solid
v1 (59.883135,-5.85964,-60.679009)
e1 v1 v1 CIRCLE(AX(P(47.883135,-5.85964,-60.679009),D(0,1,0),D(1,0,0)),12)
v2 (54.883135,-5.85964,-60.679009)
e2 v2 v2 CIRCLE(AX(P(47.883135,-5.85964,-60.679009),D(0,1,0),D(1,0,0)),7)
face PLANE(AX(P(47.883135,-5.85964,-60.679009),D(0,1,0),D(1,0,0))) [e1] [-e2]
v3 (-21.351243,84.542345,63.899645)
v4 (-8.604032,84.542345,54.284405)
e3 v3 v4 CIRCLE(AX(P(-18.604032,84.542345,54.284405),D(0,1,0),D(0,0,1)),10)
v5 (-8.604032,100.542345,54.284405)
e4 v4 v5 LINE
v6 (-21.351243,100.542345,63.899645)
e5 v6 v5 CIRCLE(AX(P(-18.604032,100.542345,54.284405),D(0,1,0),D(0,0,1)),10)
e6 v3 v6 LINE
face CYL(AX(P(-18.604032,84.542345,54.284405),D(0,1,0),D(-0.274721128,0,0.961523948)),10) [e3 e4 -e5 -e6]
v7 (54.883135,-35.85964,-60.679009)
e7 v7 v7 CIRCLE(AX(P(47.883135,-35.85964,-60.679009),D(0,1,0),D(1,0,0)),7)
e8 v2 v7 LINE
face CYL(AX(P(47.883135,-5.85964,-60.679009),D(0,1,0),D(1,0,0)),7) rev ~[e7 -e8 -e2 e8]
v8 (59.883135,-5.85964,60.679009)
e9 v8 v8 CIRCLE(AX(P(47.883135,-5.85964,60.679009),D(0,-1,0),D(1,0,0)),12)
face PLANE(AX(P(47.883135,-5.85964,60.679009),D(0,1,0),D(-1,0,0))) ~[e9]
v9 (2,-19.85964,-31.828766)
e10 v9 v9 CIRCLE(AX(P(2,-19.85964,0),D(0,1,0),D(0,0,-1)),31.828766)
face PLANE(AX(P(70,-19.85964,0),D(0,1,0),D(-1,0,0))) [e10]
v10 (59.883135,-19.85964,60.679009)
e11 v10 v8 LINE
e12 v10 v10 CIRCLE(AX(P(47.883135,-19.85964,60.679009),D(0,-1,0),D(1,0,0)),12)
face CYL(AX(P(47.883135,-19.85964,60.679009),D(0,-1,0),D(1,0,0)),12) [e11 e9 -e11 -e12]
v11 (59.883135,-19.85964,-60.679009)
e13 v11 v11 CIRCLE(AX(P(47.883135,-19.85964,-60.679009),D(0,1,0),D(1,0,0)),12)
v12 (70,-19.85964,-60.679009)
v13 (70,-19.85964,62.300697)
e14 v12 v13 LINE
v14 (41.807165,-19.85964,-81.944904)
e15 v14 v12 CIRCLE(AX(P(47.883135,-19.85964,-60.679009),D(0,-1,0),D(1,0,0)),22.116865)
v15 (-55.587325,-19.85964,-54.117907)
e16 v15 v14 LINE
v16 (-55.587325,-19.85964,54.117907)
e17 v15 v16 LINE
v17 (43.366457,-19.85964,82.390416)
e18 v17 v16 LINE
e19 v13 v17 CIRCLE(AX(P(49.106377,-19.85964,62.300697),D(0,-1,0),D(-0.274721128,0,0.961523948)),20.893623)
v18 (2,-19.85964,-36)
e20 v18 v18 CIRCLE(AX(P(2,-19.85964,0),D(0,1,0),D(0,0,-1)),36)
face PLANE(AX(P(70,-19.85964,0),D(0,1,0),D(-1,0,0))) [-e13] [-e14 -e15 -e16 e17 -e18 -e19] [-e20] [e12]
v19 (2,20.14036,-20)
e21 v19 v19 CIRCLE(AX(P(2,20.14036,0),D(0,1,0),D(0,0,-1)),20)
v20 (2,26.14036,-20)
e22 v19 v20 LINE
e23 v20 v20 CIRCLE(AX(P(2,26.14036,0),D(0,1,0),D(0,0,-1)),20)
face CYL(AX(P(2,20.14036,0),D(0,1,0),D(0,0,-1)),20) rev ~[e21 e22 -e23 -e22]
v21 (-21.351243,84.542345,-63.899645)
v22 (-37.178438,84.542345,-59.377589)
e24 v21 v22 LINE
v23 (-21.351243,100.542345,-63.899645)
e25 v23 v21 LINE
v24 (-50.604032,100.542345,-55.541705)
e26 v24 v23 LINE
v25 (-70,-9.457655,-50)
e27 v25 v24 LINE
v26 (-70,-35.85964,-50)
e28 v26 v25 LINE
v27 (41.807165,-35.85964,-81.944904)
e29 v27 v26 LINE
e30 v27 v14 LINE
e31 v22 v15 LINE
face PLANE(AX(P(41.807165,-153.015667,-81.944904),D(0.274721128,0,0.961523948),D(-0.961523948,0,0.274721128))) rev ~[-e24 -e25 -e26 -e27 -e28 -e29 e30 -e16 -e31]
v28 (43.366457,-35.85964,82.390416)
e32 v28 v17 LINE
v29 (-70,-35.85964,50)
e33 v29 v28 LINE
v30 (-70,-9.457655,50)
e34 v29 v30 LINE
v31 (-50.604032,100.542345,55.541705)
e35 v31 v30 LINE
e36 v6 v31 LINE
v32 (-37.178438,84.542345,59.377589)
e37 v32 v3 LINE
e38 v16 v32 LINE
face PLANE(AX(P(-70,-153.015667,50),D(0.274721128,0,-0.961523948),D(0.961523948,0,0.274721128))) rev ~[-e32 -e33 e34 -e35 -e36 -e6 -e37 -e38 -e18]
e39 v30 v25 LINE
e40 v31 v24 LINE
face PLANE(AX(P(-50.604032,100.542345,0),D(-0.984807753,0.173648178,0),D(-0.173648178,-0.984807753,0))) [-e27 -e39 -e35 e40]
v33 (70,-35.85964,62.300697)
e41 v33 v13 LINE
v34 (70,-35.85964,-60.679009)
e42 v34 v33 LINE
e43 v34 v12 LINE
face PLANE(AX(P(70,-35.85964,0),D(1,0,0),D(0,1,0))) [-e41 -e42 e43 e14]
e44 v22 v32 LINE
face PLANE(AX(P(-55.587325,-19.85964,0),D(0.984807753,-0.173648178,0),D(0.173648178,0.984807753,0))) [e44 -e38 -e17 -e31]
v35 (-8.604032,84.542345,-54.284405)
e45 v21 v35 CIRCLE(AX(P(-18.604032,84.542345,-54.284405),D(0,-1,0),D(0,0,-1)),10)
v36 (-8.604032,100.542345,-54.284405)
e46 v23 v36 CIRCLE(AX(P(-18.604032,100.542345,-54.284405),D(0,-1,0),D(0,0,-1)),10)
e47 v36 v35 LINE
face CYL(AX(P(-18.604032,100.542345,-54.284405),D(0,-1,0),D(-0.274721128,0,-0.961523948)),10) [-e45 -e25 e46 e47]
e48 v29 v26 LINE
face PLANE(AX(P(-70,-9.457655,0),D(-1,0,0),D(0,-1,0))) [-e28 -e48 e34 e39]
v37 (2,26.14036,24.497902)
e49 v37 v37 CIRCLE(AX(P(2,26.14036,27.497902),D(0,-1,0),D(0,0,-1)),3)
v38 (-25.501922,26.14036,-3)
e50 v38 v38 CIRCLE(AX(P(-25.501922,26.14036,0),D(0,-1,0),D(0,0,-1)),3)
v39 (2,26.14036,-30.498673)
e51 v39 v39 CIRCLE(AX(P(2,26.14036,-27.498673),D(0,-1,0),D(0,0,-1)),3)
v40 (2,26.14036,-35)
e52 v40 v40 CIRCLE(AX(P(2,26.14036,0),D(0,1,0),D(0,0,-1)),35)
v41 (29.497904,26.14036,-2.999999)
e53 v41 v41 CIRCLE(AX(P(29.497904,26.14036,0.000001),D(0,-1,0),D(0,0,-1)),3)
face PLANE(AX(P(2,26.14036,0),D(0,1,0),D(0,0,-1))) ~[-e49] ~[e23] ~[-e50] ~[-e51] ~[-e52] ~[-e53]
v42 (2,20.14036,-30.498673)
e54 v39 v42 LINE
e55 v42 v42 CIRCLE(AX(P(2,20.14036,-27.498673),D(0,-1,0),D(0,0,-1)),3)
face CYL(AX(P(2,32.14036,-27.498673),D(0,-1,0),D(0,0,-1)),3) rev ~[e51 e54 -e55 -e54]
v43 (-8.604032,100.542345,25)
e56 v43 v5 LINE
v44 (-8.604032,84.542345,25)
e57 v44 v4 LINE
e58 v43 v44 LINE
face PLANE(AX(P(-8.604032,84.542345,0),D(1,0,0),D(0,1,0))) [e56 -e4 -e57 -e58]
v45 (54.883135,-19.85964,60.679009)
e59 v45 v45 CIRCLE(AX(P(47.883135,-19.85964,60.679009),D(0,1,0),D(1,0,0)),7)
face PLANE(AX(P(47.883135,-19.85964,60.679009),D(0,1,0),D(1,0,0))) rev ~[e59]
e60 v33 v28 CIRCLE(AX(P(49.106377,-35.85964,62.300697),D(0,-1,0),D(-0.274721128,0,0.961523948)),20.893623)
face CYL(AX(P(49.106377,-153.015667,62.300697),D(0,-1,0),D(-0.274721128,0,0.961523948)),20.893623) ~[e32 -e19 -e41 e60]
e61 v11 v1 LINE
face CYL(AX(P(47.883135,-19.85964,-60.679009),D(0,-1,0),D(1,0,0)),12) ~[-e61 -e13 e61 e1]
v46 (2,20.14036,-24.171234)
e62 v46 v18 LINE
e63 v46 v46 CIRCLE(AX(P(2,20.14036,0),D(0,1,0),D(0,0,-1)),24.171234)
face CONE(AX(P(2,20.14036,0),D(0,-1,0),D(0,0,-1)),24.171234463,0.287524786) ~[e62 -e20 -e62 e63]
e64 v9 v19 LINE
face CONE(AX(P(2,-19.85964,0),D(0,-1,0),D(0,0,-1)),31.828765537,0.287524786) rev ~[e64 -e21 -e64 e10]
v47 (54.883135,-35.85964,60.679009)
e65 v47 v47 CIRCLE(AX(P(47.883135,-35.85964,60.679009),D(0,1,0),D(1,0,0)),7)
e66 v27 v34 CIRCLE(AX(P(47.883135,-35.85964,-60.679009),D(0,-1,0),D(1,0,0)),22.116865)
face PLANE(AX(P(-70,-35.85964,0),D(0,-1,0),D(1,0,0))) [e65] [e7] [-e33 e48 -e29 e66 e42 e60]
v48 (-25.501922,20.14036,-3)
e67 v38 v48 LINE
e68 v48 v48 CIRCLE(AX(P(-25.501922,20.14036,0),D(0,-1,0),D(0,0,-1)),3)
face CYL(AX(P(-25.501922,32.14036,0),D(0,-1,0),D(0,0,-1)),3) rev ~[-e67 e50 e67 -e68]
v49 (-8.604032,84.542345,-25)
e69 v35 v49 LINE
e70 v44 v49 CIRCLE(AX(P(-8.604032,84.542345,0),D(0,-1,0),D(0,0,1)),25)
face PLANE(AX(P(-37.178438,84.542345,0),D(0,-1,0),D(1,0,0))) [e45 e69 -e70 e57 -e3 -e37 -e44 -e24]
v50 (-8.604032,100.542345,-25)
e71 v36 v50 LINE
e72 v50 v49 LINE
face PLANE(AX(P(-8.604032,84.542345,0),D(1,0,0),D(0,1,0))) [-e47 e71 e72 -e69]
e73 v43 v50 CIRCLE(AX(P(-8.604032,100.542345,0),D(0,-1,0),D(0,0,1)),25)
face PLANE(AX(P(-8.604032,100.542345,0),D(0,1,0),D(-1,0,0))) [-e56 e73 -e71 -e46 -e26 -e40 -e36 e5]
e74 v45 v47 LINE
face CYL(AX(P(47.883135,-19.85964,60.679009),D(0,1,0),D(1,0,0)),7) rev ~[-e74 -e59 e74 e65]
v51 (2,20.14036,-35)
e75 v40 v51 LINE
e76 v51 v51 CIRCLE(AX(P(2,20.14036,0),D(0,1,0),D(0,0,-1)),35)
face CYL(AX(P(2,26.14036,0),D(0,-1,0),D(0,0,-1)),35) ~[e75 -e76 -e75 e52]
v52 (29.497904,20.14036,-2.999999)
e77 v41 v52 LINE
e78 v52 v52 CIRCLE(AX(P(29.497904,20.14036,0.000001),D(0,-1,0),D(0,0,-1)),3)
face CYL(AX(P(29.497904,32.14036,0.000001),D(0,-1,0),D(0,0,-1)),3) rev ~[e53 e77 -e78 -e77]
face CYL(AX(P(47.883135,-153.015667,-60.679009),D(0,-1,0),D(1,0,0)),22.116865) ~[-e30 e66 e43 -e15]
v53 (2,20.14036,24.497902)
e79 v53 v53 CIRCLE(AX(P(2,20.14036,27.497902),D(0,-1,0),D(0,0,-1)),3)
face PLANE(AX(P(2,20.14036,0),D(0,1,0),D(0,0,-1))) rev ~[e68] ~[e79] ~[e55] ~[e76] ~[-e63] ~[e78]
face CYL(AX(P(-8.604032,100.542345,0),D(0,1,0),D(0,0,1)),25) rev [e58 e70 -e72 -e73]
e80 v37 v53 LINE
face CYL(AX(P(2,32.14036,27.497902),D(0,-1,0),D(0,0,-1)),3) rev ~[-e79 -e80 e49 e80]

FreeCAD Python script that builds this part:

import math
import FreeCAD as App
import Part
import Sketcher
from FreeCAD import Vector
Q = App.Units.Quantity


def edges_at(feature, points):
    """Names of the edges that pass closest to the given points."""
    edges = feature.Shape.Edges
    near = lambda p: min(range(len(edges)), key=lambda i: edges[i].distToShape(Part.Vertex(*p))[0])
    return sorted({f"Edge{near(p) + 1}" for p in points})

doc = App.newDocument("Part")
body = doc.addObject("PartDesign::Body", "Body")

sketch1 = body.newObject("Sketcher::SketchObject", "Sketch")
sketch1.AttachmentSupport = (doc.getObject("XY_Plane"), [""])
sketch1.MapMode = "FlatFace"
sketch1.addGeometry(Part.LineSegment(Vector(-70, -36, 0), Vector(70, -36, 0)), False)
sketch1.addGeometry(Part.LineSegment(Vector(70, -36, 0), Vector(70, -20, 0)), False)
sketch1.addGeometry(Part.LineSegment(Vector(70, -20, 0), Vector(-56, -20, 0)), False)
sketch1.addGeometry(Part.LineSegment(Vector(-56, -20, 0), Vector(-37, 85, 0)), False)
sketch1.addGeometry(Part.LineSegment(Vector(-37, 85, 0), Vector(-9, 85, 0)), False)
sketch1.addGeometry(Part.LineSegment(Vector(-9, 85, 0), Vector(-9, 101, 0)), False)
sketch1.addGeometry(Part.LineSegment(Vector(-9, 101, 0), Vector(-51, 101, 0)), False)
sketch1.addGeometry(Part.LineSegment(Vector(-51, 101, 0), Vector(-70, -9, 0)), False)
sketch1.addGeometry(Part.LineSegment(Vector(-70, -9, 0), Vector(-70, -36, 0)), False)
sketch1.addConstraint(Sketcher.Constraint("Coincident", 0, 2, 1, 1))
sketch1.addConstraint(Sketcher.Constraint("Coincident", 1, 2, 2, 1))
sketch1.addConstraint(Sketcher.Constraint("Coincident", 2, 2, 3, 1))
sketch1.addConstraint(Sketcher.Constraint("Coincident", 3, 2, 4, 1))
sketch1.addConstraint(Sketcher.Constraint("Coincident", 4, 2, 5, 1))
sketch1.addConstraint(Sketcher.Constraint("Coincident", 5, 2, 6, 1))
sketch1.addConstraint(Sketcher.Constraint("Coincident", 6, 2, 7, 1))
sketch1.addConstraint(Sketcher.Constraint("Coincident", 7, 2, 8, 1))
sketch1.addConstraint(Sketcher.Constraint("Coincident", 8, 2, 0, 1))
sketch1.addConstraint(Sketcher.Constraint("Horizontal", 0))
sketch1.addConstraint(Sketcher.Constraint("Vertical", 1))
sketch1.addConstraint(Sketcher.Constraint("Horizontal", 2))
sketch1.addConstraint(Sketcher.Constraint("Horizontal", 4))
sketch1.addConstraint(Sketcher.Constraint("Vertical", 5))
sketch1.addConstraint(Sketcher.Constraint("Horizontal", 6))
sketch1.addConstraint(Sketcher.Constraint("Vertical", 8))
sketch1.addConstraint(Sketcher.Constraint("Parallel", 3, 7))
sketch1.addConstraint(Sketcher.Constraint("Equal", 1, 5))
sketch1.addConstraint(Sketcher.Constraint("DistanceX", 0, 1, 0, 2, Q("140 mm")))
sketch1.addConstraint(Sketcher.Constraint("DistanceX", 6, 2, 6, 1, Q("42 mm")))
sketch1.addConstraint(Sketcher.Constraint("DistanceY", 1, 1, 1, 2, Q("16 mm")))
sketch1.addConstraint(Sketcher.Constraint("Angle", 3, Q("80 deg")))
sketch1.addConstraint(Sketcher.Constraint("DistanceX", -1, 1, 0, 2, Q("70 mm")))
sketch1.addConstraint(Sketcher.Constraint("DistanceY", 7, 2, 3, 2, Q("94 mm")))
sketch1.addConstraint(Sketcher.Constraint("DistanceX", 2, 2, 2, 1, Q("125.587325 mm")))
sketch1.addConstraint(Sketcher.Constraint("DistanceX", 4, 1, 4, 2, Q("28.574406 mm")))
sketch1.addConstraint(Sketcher.Constraint("DistanceY", 0, 2, -1, 1, Q("35.85964 mm")))
pad1 = body.newObject("PartDesign::Pad", "Pad")
pad1.Profile = sketch1
pad1.Length = 180
pad1.Midplane = True

sketch2 = body.newObject("Sketcher::SketchObject", "Sketch001")
sketch2.AttachmentSupport = (doc.getObject("XZ_Plane"), [""])
sketch2.MapMode = "FlatFace"
sketch2.addGeometry(Part.LineSegment(Vector(-98, -118, 0), Vector(-98, 118, 0)), False)
sketch2.addGeometry(Part.LineSegment(Vector(-98, 118, 0), Vector(98, 118, 0)), False)
sketch2.addGeometry(Part.LineSegment(Vector(98, 118, 0), Vector(98, -118, 0)), False)
sketch2.addGeometry(Part.LineSegment(Vector(98, -118, 0), Vector(-98, -118, 0)), False)
sketch2.addGeometry(Part.LineSegment(Vector(-70, 50, 0), Vector(-70, -50, 0)), False)
sketch2.addGeometry(Part.LineSegment(Vector(-70, -50, 0), Vector(42, -82, 0)), False)
sketch2.addGeometry(Part.ArcOfCircle(Part.Circle(Vector(48, -61, 0), Vector(0, 0, 1), 22), math.radians(-106), math.radians(0)), False)
sketch2.addGeometry(Part.LineSegment(Vector(70, -61, 0), Vector(70, 62, 0)), False)
sketch2.addGeometry(Part.ArcOfCircle(Part.Circle(Vector(49, 62, 0), Vector(0, 0, 1), 21), math.radians(0), math.radians(106)), False)
sketch2.addGeometry(Part.LineSegment(Vector(43, 82, 0), Vector(-70, 50, 0)), False)
sketch2.addConstraint(Sketcher.Constraint("Coincident", 0, 2, 1, 1))
sketch2.addConstraint(Sketcher.Constraint("Coincident", 1, 2, 2, 1))
sketch2.addConstraint(Sketcher.Constraint("Coincident", 2, 2, 3, 1))
sketch2.addConstraint(Sketcher.Constraint("Coincident", 3, 2, 0, 1))
sketch2.addConstraint(Sketcher.Constraint("Coincident", 4, 2, 5, 1))
sketch2.addConstraint(Sketcher.Constraint("Tangent", 5, 2, 6, 1))
sketch2.addConstraint(Sketcher.Constraint("Tangent", 6, 2, 7, 1))
sketch2.addConstraint(Sketcher.Constraint("Tangent", 7, 2, 8, 1))
sketch2.addConstraint(Sketcher.Constraint("Tangent", 8, 2, 9, 1))
sketch2.addConstraint(Sketcher.Constraint("Coincident", 9, 2, 4, 1))
sketch2.addConstraint(Sketcher.Constraint("Vertical", 0))
sketch2.addConstraint(Sketcher.Constraint("Horizontal", 1))
sketch2.addConstraint(Sketcher.Constraint("Vertical", 2))
sketch2.addConstraint(Sketcher.Constraint("Horizontal", 3))
sketch2.addConstraint(Sketcher.Constraint("Vertical", 4))
sketch2.addConstraint(Sketcher.Constraint("Vertical", 7))
sketch2.addConstraint(Sketcher.Constraint("Symmetric", 0, 2, 2, 2, -1, 1))
sketch2.addConstraint(Sketcher.Constraint("DistanceY", 4, 2, 4, 1, Q("100 mm")))
sketch2.addConstraint(Sketcher.Constraint("DistanceX", 4, 2, -1, 1, Q("70 mm")))
sketch2.addConstraint(Sketcher.Constraint("DistanceY", 4, 2, -1, 1, Q("50 mm")))
sketch2.addConstraint(Sketcher.Constraint("DistanceX", -1, 1, 6, 2, Q("70 mm")))
sketch2.addConstraint(Sketcher.Constraint("DistanceX", 1, 1, 1, 2, Q("195.144 mm")))
sketch2.addConstraint(Sketcher.Constraint("DistanceY", 0, 1, 0, 2, Q("235.144 mm")))
sketch2.addConstraint(Sketcher.Constraint("Radius", 6, Q("22.116865 mm")))
sketch2.addConstraint(Sketcher.Constraint("Radius", 8, Q("20.893623 mm")))
sketch2.addConstraint(Sketcher.Constraint("DistanceY", 5, 2, 8, 3, Q("144.245602 mm")))
sketch2.addConstraint(Sketcher.Constraint("DistanceY", 7, 1, 7, 2, Q("122.979706 mm")))
pocket1 = body.newObject("PartDesign::Pocket", "Pocket")
pocket1.Profile = sketch2
pocket1.Type = "ThroughAll"
pocket1.Midplane = True
doc.recompute()

fillet = body.newObject("PartDesign::Fillet", "Fillet")
fillet.Base = (pocket1, edges_at(pocket1, [(-8.604, 92.542, -67.542), (-8.604, 92.542, 67.542)]))
fillet.Radius = 10

sketch3 = body.newObject("Sketcher::SketchObject", "Sketch002")
sketch3.AttachmentSupport = (doc.getObject("XZ_Plane"), [""])
sketch3.MapMode = "FlatFace"
sketch3.AttachmentOffset = App.Placement(Vector(0, 0, 19.85964), App.Rotation())
sketch3.addGeometry(Part.Circle(Vector(48, -61, 0), Vector(0, 0, 1), 12), False)
sketch3.addConstraint(Sketcher.Constraint("Diameter", 0, Q("24 mm")))
sketch3.addConstraint(Sketcher.Constraint("DistanceY", 0, 3, -1, 1, Q("60.679009 mm")))
sketch3.addConstraint(Sketcher.Constraint("DistanceX", -1, 1, 0, 3, Q("47.883135 mm")))
pad2 = body.newObject("PartDesign::Pad", "Pad001")
pad2.Profile = sketch3
pad2.Length = 14
pad2.Reversed = True
doc.recompute()

mirrored = body.newObject("PartDesign::Mirrored", "Mirrored")
mirrored.Originals = [pad2]
mirrored.MirrorPlane = (doc.getObject("XY_Plane"), [""])
body.Tip = mirrored

sketch4 = body.newObject("Sketcher::SketchObject", "Sketch003")
sketch4.AttachmentSupport = (doc.getObject("XZ_Plane"), [""])
sketch4.MapMode = "FlatFace"
sketch4.AttachmentOffset = App.Placement(Vector(0, 0, -100.542345), App.Rotation())
sketch4.addGeometry(Part.LineSegment(Vector(-9, 25, 0), Vector(-9, -25, 0)), False)
sketch4.addGeometry(Part.ArcOfCircle(Part.Circle(Vector(-9, 0, 0), Vector(0, 0, 1), 25), math.radians(90), math.radians(270)), False)
sketch4.addConstraint(Sketcher.Constraint("Coincident", 0, 1, 1, 1))
sketch4.addConstraint(Sketcher.Constraint("Coincident", 1, 2, 0, 2))
sketch4.addConstraint(Sketcher.Constraint("Vertical", 0))
sketch4.addConstraint(Sketcher.Constraint("PointOnObject", 1, 3, -1))
sketch4.addConstraint(Sketcher.Constraint("Vertical", 1, 3, 0, 1))
sketch4.addConstraint(Sketcher.Constraint("Radius", 1, Q("25 mm")))
sketch4.addConstraint(Sketcher.Constraint("DistanceX", 1, 3, -1, 1, Q("8.604032 mm")))
pocket2 = body.newObject("PartDesign::Pocket", "Pocket001")
pocket2.Profile = sketch4
pocket2.Length = 16
pocket2.Reversed = True

sketch5 = body.newObject("Sketcher::SketchObject", "Sketch004")
sketch5.AttachmentSupport = (doc.getObject("XY_Plane"), [""])
sketch5.MapMode = "FlatFace"
sketch5.addGeometry(Part.LineSegment(Vector(37, 20.1, 0), Vector(37, 26.1, 0)), False)
sketch5.addGeometry(Part.LineSegment(Vector(37, 26.1, 0), Vector(22, 26.1, 0)), False)
sketch5.addGeometry(Part.LineSegment(Vector(22, 26.1, 0), Vector(22, 20.1, 0)), False)
sketch5.addGeometry(Part.LineSegment(Vector(22, 20.1, 0), Vector(33.8, -19.9, 0)), False)
sketch5.addGeometry(Part.LineSegment(Vector(33.8, -19.9, 0), Vector(38, -19.9, 0)), False)
sketch5.addGeometry(Part.LineSegment(Vector(38, -19.9, 0), Vector(26.2, 20.1, 0)), False)
sketch5.addGeometry(Part.LineSegment(Vector(26.2, 20.1, 0), Vector(37, 20.1, 0)), False)
sketch5.addGeometry(Part.LineSegment(Vector(2, -19.9, 0), Vector(2, 26.1, 0)), True)
sketch5.addConstraint(Sketcher.Constraint("Coincident", 0, 2, 1, 1))
sketch5.addConstraint(Sketcher.Constraint("Coincident", 1, 2, 2, 1))
sketch5.addConstraint(Sketcher.Constraint("Coincident", 2, 2, 3, 1))
sketch5.addConstraint(Sketcher.Constraint("Coincident", 3, 2, 4, 1))
sketch5.addConstraint(Sketcher.Constraint("Coincident", 4, 2, 5, 1))
sketch5.addConstraint(Sketcher.Constraint("Coincident", 5, 2, 6, 1))
sketch5.addConstraint(Sketcher.Constraint("Coincident", 6, 2, 0, 1))
sketch5.addConstraint(Sketcher.Constraint("Vertical", 0))
sketch5.addConstraint(Sketcher.Constraint("Horizontal", 1))
sketch5.addConstraint(Sketcher.Constraint("Vertical", 2))
sketch5.addConstraint(Sketcher.Constraint("Horizontal", 4))
sketch5.addConstraint(Sketcher.Constraint("Horizontal", 6))
sketch5.addConstraint(Sketcher.Constraint("Vertical", 7))
sketch5.addConstraint(Sketcher.Constraint("Parallel", 3, 5))
sketch5.addConstraint(Sketcher.Constraint("Horizontal", 2, 2, 5, 2))
sketch5.addConstraint(Sketcher.Constraint("Horizontal", 4, 2, 7, 1))
sketch5.addConstraint(Sketcher.Constraint("Horizontal", 1, 2, 7, 2))
sketch5.addConstraint(Sketcher.Constraint("DistanceX", 1, 2, 1, 1, Q("15 mm")))
sketch5.addConstraint(Sketcher.Constraint("DistanceY", 0, 1, 0, 2, Q("6 mm")))
sketch5.addConstraint(Sketcher.Constraint("DistanceY", 7, 1, 7, 2, Q("46 mm")))
sketch5.addConstraint(Sketcher.Constraint("DistanceX", -1, 1, 0, 2, Q("37 mm")))
sketch5.addConstraint(Sketcher.Constraint("DistanceX", -1, 1, 4, 2, Q("38 mm")))
sketch5.addConstraint(Sketcher.Constraint("DistanceX", -1, 1, 7, 1, Q("2 mm")))
sketch5.addConstraint(Sketcher.Constraint("DistanceX", 4, 1, 4, 2, Q("4.171234 mm")))
sketch5.addConstraint(Sketcher.Constraint("DistanceY", -1, 1, 0, 2, Q("26.14036 mm")))
revolution = body.newObject("PartDesign::Revolution", "Revolution")
revolution.Profile = sketch5
revolution.ReferenceAxis = (sketch5, ["Axis0"])
revolution.Angle = 360

sketch6 = body.newObject("Sketcher::SketchObject", "Sketch005")
sketch6.AttachmentSupport = (doc.getObject("XZ_Plane"), [""])
sketch6.MapMode = "FlatFace"
sketch6.AttachmentOffset = App.Placement(Vector(0, 0, -26.14036), App.Rotation())
sketch6.addGeometry(Part.Circle(Vector(2, -27.5, 0), Vector(0, 0, 1), 3), False)
sketch6.addGeometry(Part.Circle(Vector(29.5, 0, 0), Vector(0, 0, 1), 3), False)
sketch6.addGeometry(Part.Circle(Vector(2, 27.5, 0), Vector(0, 0, 1), 3), False)
sketch6.addGeometry(Part.Circle(Vector(-25.5, 0, 0), Vector(0, 0, 1), 3), False)
sketch6.addConstraint(Sketcher.Constraint("Equal", 0, 1))
sketch6.addConstraint(Sketcher.Constraint("Equal", 1, 2))
sketch6.addConstraint(Sketcher.Constraint("Equal", 2, 3))
sketch6.addConstraint(Sketcher.Constraint("PointOnObject", 1, 3, -1))
sketch6.addConstraint(Sketcher.Constraint("PointOnObject", 3, 3, -1))
sketch6.addConstraint(Sketcher.Constraint("Vertical", 0, 3, 2, 3))
sketch6.addConstraint(Sketcher.Constraint("Diameter", 0, Q("6 mm")))
sketch6.addConstraint(Sketcher.Constraint("DistanceX", -1, 1, 0, 3, Q("2 mm")))
sketch6.addConstraint(Sketcher.Constraint("DistanceY", -1, 1, 2, 3, Q("27.497902 mm")))
sketch6.addConstraint(Sketcher.Constraint("DistanceY", 0, 3, -1, 1, Q("27.498673 mm")))
sketch6.addConstraint(Sketcher.Constraint("DistanceX", -1, 1, 1, 3, Q("29.497904 mm")))
sketch6.addConstraint(Sketcher.Constraint("DistanceX", 3, 3, -1, 1, Q("25.501922 mm")))
doc.recompute()
hole = body.newObject("PartDesign::Hole", "Hole")
hole.Profile = sketch6
hole.ThreadType = "None"
hole.Diameter = 6
hole.DepthType = "Dimension"
hole.Depth = 6
hole.DrillPoint = "Flat"
hole.Reversed = True

sketch7 = body.newObject("Sketcher::SketchObject", "Sketch006")
sketch7.AttachmentSupport = (doc.getObject("XZ_Plane"), [""])
sketch7.MapMode = "FlatFace"
sketch7.AttachmentOffset = App.Placement(Vector(0, 0, 5.85964), App.Rotation())
sketch7.addGeometry(Part.Circle(Vector(48, -61, 0), Vector(0, 0, 1), 7), False)
sketch7.addConstraint(Sketcher.Constraint("Diameter", 0, Q("14 mm")))
sketch7.addConstraint(Sketcher.Constraint("DistanceY", 0, 3, -1, 1, Q("60.679009 mm")))
sketch7.addConstraint(Sketcher.Constraint("DistanceX", -1, 1, 0, 3, Q("47.883135 mm")))
pocket3 = body.newObject("PartDesign::Pocket", "Pocket002")
pocket3.Profile = sketch7
pocket3.Type = "UpToFirst"
pocket3.Reversed = True

sketch8 = body.newObject("Sketcher::SketchObject", "Sketch007")
sketch8.AttachmentSupport = (doc.getObject("XZ_Plane"), [""])
sketch8.MapMode = "FlatFace"
sketch8.AttachmentOffset = App.Placement(Vector(0, 0, 19.85964), App.Rotation())
sketch8.addGeometry(Part.Circle(Vector(48, 61, 0), Vector(0, 0, 1), 7), False)
sketch8.addConstraint(Sketcher.Constraint("Diameter", 0, Q("14 mm")))
sketch8.addConstraint(Sketcher.Constraint("DistanceY", -1, 1, 0, 3, Q("60.679009 mm")))
sketch8.addConstraint(Sketcher.Constraint("DistanceX", -1, 1, 0, 3, Q("47.883135 mm")))
pocket4 = body.newObject("PartDesign::Pocket", "Pocket003")
pocket4.Profile = sketch8
pocket4.Type = "UpToFirst"
pocket4.Reversed = True

doc.recompute()
